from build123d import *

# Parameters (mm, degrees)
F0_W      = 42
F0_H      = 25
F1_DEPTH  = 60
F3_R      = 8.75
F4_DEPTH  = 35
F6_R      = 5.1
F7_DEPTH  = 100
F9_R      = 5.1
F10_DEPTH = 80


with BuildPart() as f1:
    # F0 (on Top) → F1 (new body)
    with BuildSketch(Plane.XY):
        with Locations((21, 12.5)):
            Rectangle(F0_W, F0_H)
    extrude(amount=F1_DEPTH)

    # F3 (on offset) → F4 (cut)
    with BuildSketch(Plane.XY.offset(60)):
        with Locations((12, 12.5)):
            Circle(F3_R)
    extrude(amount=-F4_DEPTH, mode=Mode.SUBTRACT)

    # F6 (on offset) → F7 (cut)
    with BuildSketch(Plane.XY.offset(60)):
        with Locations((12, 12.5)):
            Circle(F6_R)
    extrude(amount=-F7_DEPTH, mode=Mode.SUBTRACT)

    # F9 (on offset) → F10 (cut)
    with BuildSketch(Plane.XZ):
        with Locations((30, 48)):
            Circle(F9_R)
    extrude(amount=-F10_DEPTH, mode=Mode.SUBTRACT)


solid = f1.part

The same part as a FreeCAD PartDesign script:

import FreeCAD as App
import Part
import Sketcher

V = App.Vector

doc = App.newDocument("Part")
body = doc.addObject("PartDesign::Body", "Body")

sketch1 = body.newObject("Sketcher::SketchObject", "Sketch")
sketch1.AttachmentSupport = (doc.getObject("XY_Plane"), [""])
sketch1.MapMode = "FlatFace"
sketch1.addGeometry([
    Part.LineSegment(V(0, 25, 0), V(0, 0, 0)),
    Part.LineSegment(V(0, 0, 0), V(42, 0, 0)),
    Part.LineSegment(V(42, 0, 0), V(42, 25, 0)),
    Part.LineSegment(V(42, 25, 0), V(0, 25, 0)),
], False)
sketch1.addConstraint([
    Sketcher.Constraint("Coincident", 0, 2, 1, 1),
    Sketcher.Constraint("Coincident", 1, 2, 2, 1),
    Sketcher.Constraint("Coincident", 2, 2, 3, 1),
    Sketcher.Constraint("Coincident", 3, 2, 0, 1),
    Sketcher.Constraint("Vertical", 0),
    Sketcher.Constraint("Horizontal", 1),
    Sketcher.Constraint("Vertical", 2),
    Sketcher.Constraint("Horizontal", 3),
    Sketcher.Constraint("Coincident", 0, 2, -1, 1),
    Sketcher.Constraint("DistanceX", 1, 1, 1, 2, 42.0),
    Sketcher.Constraint("DistanceY", 0, 2, 0, 1, 25.0),
])
pad1 = body.newObject("PartDesign::Pad", "Pad")
pad1.Profile = sketch1
pad1.Length = 60

sketch2 = body.newObject("Sketcher::SketchObject", "Sketch001")
sketch2.AttachmentSupport = (doc.getObject("XY_Plane"), [""])
sketch2.MapMode = "FlatFace"
sketch2.AttachmentOffset = App.Placement(V(0, 0, 60), App.Rotation())
sketch2.addGeometry(Part.Circle(V(12, 12, 0), V(0, 0, 1), 9), False)
sketch2.addConstraint([
    Sketcher.Constraint("Diameter", 0, 17.5),
    Sketcher.Constraint("DistanceX", -1, 1, 0, 3, 12.0),
    Sketcher.Constraint("DistanceY", -1, 1, 0, 3, 12.5),
])
pocket1 = body.newObject("PartDesign::Pocket", "Pocket")
pocket1.Profile = sketch2
pocket1.Length = 35

sketch3 = body.newObject("Sketcher::SketchObject", "Sketch002")
sketch3.AttachmentSupport = (doc.getObject("XY_Plane"), [""])
sketch3.MapMode = "FlatFace"
sketch3.AttachmentOffset = App.Placement(V(0, 0, 60), App.Rotation())
sketch3.addGeometry(Part.Circle(V(12, 12, 0), V(0, 0, 1), 5), False)
sketch3.addConstraint([
    Sketcher.Constraint("Diameter", 0, 10.2),
    Sketcher.Constraint("DistanceX", -1, 1, 0, 3, 12.0),
    Sketcher.Constraint("DistanceY", -1, 1, 0, 3, 12.5),
])
pocket2 = body.newObject("PartDesign::Pocket", "Pocket001")
pocket2.Profile = sketch3
pocket2.Length = 100

sketch4 = body.newObject("Sketcher::SketchObject", "Sketch003")
sketch4.AttachmentSupport = (doc.getObject("XZ_Plane"), [""])
sketch4.MapMode = "FlatFace"
sketch4.addGeometry(Part.Circle(V(30, 48, 0), V(0, 0, 1), 5), False)
sketch4.addConstraint([
    Sketcher.Constraint("Diameter", 0, 10.2),
    Sketcher.Constraint("DistanceX", -1, 1, 0, 3, 30.0),
    Sketcher.Constraint("DistanceY", -1, 1, 0, 3, 48.0),
])
pocket3 = body.newObject("PartDesign::Pocket", "Pocket002")
pocket3.Profile = sketch4
pocket3.Length = 80

doc.recompute()
